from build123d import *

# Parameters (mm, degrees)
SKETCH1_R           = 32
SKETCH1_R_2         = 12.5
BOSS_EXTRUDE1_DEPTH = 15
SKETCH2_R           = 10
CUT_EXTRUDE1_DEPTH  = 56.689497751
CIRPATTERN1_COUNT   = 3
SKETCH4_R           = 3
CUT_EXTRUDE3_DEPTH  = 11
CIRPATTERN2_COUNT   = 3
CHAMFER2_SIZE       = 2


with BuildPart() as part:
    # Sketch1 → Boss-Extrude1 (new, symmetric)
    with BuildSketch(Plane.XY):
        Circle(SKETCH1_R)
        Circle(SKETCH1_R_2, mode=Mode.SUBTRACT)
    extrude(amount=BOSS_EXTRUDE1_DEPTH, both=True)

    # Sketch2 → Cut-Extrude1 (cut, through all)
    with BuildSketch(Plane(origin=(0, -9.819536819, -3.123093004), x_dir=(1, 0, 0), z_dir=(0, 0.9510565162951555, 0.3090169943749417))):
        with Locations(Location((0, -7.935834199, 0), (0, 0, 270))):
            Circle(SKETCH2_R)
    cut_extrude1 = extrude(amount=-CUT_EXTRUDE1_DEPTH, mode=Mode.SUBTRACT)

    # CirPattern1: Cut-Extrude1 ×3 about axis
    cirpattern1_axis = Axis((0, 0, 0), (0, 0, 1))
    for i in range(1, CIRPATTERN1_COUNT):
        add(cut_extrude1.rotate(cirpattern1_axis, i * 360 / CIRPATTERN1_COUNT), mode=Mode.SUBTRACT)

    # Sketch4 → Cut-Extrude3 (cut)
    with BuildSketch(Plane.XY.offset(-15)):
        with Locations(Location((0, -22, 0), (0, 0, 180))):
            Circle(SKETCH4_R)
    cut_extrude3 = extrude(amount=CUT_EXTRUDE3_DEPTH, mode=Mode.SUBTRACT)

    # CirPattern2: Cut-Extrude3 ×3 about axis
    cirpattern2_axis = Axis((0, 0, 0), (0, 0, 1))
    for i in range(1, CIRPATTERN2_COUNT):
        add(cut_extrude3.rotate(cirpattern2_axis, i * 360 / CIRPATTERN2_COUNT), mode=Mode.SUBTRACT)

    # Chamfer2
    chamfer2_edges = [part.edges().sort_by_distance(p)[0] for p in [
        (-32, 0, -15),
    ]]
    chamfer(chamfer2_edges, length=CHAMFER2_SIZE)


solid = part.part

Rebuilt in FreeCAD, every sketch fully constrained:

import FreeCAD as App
import Part
import Sketcher


def edges_at(feature, points):
    """Names of the edges that pass closest to the given points."""
    edges = feature.Shape.Edges
    near = lambda p: min(range(len(edges)), key=lambda i: edges[i].distToShape(Part.Vertex(*p))[0])
    return sorted({f"Edge{near(p) + 1}" for p in points})

doc = App.newDocument("Part")
body = doc.addObject("PartDesign::Body", "Body")

# Sketch on XY plane
sketch1 = body.newObject("Sketcher::SketchObject", "Sketch")
sketch1.AttachmentSupport = (doc.getObject("XY_Plane"), [""])
sketch1.MapMode = "FlatFace"
sketch1.addGeometry([
    Part.Circle(App.Vector(0, 0, 0), App.Vector(0, 0, 1), 32),
    Part.Circle(App.Vector(0, 0, 0), App.Vector(0, 0, 1), 12.5),
], False)
sketch1.addConstraint([
    Sketcher.Constraint("Coincident", 0, 3, -1, 1),
    Sketcher.Constraint("Coincident", 1, 3, -1, 1),
    Sketcher.Constraint("Diameter", 0, 64.0),
    Sketcher.Constraint("Diameter", 1, 25.0),
])
pad1 = body.newObject("PartDesign::Pad", "Pad")
pad1.Profile = sketch1
pad1.Length = 30
pad1.Midplane = True

# Sketch on an angled plane
sketch2 = body.newObject("Sketcher::SketchObject", "Sketch001")
sketch2.Placement = App.Placement(App.Vector(0, -9.819537, -3.123093), App.Rotation(App.Vector(1, 0, 0), App.Vector(0, 0.309016994, -0.951056516), App.Vector(0, 0.951056516, 0.309016994), "ZXY"))
sketch2.addGeometry(Part.Circle(App.Vector(0, -7.935834, 0), App.Vector(0, 0, 1), 10), False)
sketch2.addConstraint([
    Sketcher.Constraint("PointOnObject", 0, 3, -2),
    Sketcher.Constraint("Diameter", 0, 20.0),
    Sketcher.Constraint("DistanceY", 0, 3, -1, 1, 7.935834),
])
pocket1 = body.newObject("PartDesign::Pocket", "Pocket")
pocket1.Profile = sketch2
pocket1.Type = "ThroughAll"
doc.recompute()

polarpattern = body.newObject("PartDesign::PolarPattern", "PolarPattern")
polarpattern.Originals = [pocket1]
polarpattern.Axis = (doc.getObject("Z_Axis"), [""])
polarpattern.Angle = 360
polarpattern.Occurrences = 3
body.Tip = polarpattern

# Sketch on XY plane
sketch3 = body.newObject("Sketcher::SketchObject", "Sketch002")
sketch3.AttachmentSupport = (doc.getObject("XY_Plane"), [""])
sketch3.MapMode = "FlatFace"
sketch3.AttachmentOffset = App.Placement(App.Vector(0, 0, -15), App.Rotation())
sketch3.addGeometry(Part.Circle(App.Vector(0, -22, 0), App.Vector(0, 0, 1), 3), False)
sketch3.addConstraint([
    Sketcher.Constraint("PointOnObject", 0, 3, -2),
    Sketcher.Constraint("Diameter", 0, 6.0),
    Sketcher.Constraint("DistanceY", 0, 3, -1, 1, 22.0),
])
pocket2 = body.newObject("PartDesign::Pocket", "Pocket001")
pocket2.Profile = sketch3
pocket2.Length = 11
pocket2.Reversed = True
doc.recompute()

polarpattern2 = body.newObject("PartDesign::PolarPattern", "PolarPattern001")
polarpattern2.Originals = [pocket2]
polarpattern2.Axis = (doc.getObject("Z_Axis"), [""])
polarpattern2.Angle = 360
polarpattern2.Occurrences = 3
body.Tip = polarpattern2
doc.recompute()

chamfer = body.newObject("PartDesign::Chamfer", "Chamfer")
chamfer.Base = (polarpattern2, edges_at(polarpattern2, [(-32, 0, -15)]))
chamfer.Size = 2

doc.recompute()
